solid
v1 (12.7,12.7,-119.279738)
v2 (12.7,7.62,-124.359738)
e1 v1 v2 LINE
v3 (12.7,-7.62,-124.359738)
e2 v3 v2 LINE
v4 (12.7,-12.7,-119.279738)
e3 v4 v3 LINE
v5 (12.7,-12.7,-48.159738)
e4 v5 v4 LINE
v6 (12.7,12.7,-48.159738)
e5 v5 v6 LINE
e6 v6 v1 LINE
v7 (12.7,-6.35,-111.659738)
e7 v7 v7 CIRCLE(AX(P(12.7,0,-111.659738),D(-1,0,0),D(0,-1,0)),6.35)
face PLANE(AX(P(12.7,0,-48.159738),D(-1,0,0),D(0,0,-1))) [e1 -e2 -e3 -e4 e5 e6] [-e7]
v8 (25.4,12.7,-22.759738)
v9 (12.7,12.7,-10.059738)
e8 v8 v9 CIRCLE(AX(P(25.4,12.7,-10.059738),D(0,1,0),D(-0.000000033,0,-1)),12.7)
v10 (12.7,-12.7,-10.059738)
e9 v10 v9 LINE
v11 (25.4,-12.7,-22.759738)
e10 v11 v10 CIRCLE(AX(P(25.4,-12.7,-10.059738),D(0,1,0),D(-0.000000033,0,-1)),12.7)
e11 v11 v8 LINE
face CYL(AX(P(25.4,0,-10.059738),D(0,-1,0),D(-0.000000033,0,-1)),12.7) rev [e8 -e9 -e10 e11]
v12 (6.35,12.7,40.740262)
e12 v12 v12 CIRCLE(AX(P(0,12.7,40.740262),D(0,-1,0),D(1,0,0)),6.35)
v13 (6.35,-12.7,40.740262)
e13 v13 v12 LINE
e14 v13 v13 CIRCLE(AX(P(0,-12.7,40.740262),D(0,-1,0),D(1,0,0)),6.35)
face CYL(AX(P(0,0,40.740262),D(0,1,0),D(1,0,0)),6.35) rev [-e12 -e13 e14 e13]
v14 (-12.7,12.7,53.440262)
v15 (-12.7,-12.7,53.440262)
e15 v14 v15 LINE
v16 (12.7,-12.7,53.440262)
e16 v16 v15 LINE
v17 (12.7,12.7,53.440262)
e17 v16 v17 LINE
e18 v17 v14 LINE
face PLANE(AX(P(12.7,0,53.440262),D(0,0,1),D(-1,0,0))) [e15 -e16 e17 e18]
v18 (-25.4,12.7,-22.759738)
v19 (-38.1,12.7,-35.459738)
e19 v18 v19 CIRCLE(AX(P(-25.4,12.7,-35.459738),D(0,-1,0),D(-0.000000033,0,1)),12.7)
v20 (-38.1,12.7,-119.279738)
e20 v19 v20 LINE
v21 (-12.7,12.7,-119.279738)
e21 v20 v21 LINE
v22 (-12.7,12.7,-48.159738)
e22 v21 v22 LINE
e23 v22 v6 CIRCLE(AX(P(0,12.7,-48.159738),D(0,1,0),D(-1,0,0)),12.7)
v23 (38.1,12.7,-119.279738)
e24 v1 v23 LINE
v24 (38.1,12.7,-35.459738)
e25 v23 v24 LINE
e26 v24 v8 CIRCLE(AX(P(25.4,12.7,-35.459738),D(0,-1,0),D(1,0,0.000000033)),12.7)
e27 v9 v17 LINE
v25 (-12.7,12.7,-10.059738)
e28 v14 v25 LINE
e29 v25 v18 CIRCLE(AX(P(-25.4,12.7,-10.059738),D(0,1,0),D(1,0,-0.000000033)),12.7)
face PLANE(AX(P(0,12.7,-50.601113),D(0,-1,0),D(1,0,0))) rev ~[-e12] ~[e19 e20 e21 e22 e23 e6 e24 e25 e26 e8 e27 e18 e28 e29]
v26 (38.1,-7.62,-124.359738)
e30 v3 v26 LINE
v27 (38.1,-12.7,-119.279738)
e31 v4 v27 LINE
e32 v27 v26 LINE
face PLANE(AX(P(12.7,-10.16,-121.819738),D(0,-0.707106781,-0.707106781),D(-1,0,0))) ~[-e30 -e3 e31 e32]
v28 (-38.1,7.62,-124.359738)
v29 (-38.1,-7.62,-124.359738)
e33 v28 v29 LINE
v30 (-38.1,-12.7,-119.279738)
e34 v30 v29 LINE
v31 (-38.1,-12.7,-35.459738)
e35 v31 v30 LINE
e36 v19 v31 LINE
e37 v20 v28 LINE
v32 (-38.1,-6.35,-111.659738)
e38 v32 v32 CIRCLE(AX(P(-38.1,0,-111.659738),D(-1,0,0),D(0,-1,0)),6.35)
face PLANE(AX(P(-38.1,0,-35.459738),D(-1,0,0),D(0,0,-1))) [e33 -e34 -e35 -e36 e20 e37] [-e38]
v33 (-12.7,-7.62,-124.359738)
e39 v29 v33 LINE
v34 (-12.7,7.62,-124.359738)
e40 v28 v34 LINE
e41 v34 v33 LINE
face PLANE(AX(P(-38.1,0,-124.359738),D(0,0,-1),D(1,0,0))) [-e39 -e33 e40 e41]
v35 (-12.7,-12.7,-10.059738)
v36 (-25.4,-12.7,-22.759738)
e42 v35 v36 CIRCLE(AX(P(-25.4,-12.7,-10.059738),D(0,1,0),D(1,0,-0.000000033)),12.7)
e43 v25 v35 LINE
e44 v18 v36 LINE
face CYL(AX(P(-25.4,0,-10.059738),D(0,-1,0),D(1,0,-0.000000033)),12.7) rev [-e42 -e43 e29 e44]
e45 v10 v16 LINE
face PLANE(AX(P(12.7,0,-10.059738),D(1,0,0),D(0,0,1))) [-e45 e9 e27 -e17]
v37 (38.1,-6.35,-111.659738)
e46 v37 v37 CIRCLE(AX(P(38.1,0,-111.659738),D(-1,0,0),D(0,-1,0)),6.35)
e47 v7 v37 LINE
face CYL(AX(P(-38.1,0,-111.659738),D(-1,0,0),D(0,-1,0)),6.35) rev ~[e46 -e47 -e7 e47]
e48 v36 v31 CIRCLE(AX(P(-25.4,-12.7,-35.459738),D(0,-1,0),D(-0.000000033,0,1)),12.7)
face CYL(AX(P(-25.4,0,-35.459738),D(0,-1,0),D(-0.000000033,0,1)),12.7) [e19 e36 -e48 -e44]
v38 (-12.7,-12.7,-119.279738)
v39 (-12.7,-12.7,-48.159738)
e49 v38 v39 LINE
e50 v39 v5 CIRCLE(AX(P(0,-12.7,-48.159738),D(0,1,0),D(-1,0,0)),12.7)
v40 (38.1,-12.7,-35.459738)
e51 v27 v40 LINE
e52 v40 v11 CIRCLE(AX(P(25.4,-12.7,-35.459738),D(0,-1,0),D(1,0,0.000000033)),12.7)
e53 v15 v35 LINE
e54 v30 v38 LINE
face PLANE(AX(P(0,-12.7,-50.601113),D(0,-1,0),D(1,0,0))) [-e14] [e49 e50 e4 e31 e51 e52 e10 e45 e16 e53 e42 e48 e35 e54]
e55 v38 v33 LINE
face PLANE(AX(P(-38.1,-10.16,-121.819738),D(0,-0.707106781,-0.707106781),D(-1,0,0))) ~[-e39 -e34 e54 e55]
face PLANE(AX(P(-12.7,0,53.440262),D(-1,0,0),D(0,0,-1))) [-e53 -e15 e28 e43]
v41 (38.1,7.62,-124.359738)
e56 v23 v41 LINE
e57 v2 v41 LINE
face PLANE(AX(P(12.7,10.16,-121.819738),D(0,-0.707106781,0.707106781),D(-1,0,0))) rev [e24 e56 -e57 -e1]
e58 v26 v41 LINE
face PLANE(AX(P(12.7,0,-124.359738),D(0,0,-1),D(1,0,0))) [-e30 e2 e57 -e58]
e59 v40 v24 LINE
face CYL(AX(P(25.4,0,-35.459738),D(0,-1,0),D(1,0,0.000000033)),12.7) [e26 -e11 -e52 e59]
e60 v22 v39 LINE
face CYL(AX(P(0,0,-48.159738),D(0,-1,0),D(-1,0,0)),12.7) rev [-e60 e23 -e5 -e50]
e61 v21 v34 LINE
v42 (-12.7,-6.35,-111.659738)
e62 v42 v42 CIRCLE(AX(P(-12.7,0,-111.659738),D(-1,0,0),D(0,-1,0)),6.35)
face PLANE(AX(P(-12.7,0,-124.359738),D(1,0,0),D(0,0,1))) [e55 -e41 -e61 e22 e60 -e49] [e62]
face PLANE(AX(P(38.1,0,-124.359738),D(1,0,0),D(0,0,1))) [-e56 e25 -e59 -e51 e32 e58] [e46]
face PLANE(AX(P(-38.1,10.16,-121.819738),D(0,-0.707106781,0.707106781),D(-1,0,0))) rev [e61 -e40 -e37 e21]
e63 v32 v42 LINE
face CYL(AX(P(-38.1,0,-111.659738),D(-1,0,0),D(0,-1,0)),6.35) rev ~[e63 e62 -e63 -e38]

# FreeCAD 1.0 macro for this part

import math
import FreeCAD as App
import Part
import Sketcher

V = App.Vector
Q = App.Units.Quantity


def edges_at(feature, points):
    """Names of the edges that pass closest to the given points."""
    edges = feature.Shape.Edges
    near = lambda p: min(range(len(edges)), key=lambda i: edges[i].distToShape(Part.Vertex(*p))[0])
    return sorted({f"Edge{near(p) + 1}" for p in points})

doc = App.newDocument("Part")
body = doc.addObject("PartDesign::Body", "Body")

sketch1 = body.newObject("Sketcher::SketchObject", "Sketch")
sketch1.AttachmentSupport = (doc.getObject("XZ_Plane"), [""])
sketch1.MapMode = "FlatFace"
sketch1.addGeometry(Part.LineSegment(V(12.7, 53.440262, 0), V(-12.7, 53.440262, 0)), False)
sketch1.addGeometry(Part.LineSegment(V(-12.7, 53.440262, 0), V(-12.7, -10.059738, 0)), False)
sketch1.addGeometry(Part.ArcOfCircle(Part.Circle(V(-25.4, -10.059738, 0), V(0, 0, 1), 12.7), math.radians(-89.999998), math.radians(-0.000002)), False)
sketch1.addGeometry(Part.ArcOfCircle(Part.Circle(V(-25.4, -35.459738, 0), V(0, 0, 1), 12.7), math.radians(90.000002), math.radians(179.999998)), False)
sketch1.addGeometry(Part.LineSegment(V(-38.1, -35.459738, 0), V(-38.1, -124.359738, 0)), False)
sketch1.addGeometry(Part.LineSegment(V(-38.1, -124.359738, 0), V(-12.7, -124.359738, 0)), False)
sketch1.addGeometry(Part.LineSegment(V(-12.7, -124.359738, 0), V(-12.7, -48.159738, 0)), False)
sketch1.addGeometry(Part.ArcOfCircle(Part.Circle(V(0, -48.159738, 0), V(0, 0, 1), 12.7), math.radians(0), math.radians(180)), False)
sketch1.addGeometry(Part.LineSegment(V(12.7, -48.159738, 0), V(12.7, -124.359738, 0)), False)
sketch1.addGeometry(Part.LineSegment(V(12.7, -124.359738, 0), V(38.1, -124.359738, 0)), False)
sketch1.addGeometry(Part.LineSegment(V(38.1, -124.359738, 0), V(38.1, -35.459738, 0)), False)
sketch1.addGeometry(Part.ArcOfCircle(Part.Circle(V(25.4, -35.459738, 0), V(0, 0, 1), 12.7), math.radians(0.000002), math.radians(89.999998)), False)
sketch1.addGeometry(Part.ArcOfCircle(Part.Circle(V(25.4, -10.059738, 0), V(0, 0, 1), 12.7), math.radians(-179.999998), math.radians(-90.000002)), False)
sketch1.addGeometry(Part.LineSegment(V(12.7, -10.059738, 0), V(12.7, 53.440262, 0)), False)
sketch1.addGeometry(Part.Circle(V(0, 40.740262, 0), V(0, 0, 1), 6.35), False)
sketch1.addConstraint(Sketcher.Constraint("Coincident", 0, 2, 1, 1))
sketch1.addConstraint(Sketcher.Constraint("Tangent", 1, 2, 2, 2))
sketch1.addConstraint(Sketcher.Constraint("Tangent", 2, 1, 3, 1))
sketch1.addConstraint(Sketcher.Constraint("Tangent", 3, 2, 4, 1))
sketch1.addConstraint(Sketcher.Constraint("Coincident", 4, 2, 5, 1))
sketch1.addConstraint(Sketcher.Constraint("Coincident", 5, 2, 6, 1))
sketch1.addConstraint(Sketcher.Constraint("Tangent", 6, 2, 7, 2))
sketch1.addConstraint(Sketcher.Constraint("Tangent", 7, 1, 8, 1))
sketch1.addConstraint(Sketcher.Constraint("Coincident", 8, 2, 9, 1))
sketch1.addConstraint(Sketcher.Constraint("Coincident", 9, 2, 10, 1))
sketch1.addConstraint(Sketcher.Constraint("Tangent", 10, 2, 11, 1))
sketch1.addConstraint(Sketcher.Constraint("Tangent", 11, 2, 12, 2))
sketch1.addConstraint(Sketcher.Constraint("Tangent", 12, 1, 13, 1))
sketch1.addConstraint(Sketcher.Constraint("Coincident", 13, 2, 0, 1))
sketch1.addConstraint(Sketcher.Constraint("Horizontal", 0))
sketch1.addConstraint(Sketcher.Constraint("Vertical", 1))
sketch1.addConstraint(Sketcher.Constraint("Vertical", 4))
sketch1.addConstraint(Sketcher.Constraint("Horizontal", 5))
sketch1.addConstraint(Sketcher.Constraint("Vertical", 6))
sketch1.addConstraint(Sketcher.Constraint("Vertical", 8))
sketch1.addConstraint(Sketcher.Constraint("Horizontal", 9))
sketch1.addConstraint(Sketcher.Constraint("Vertical", 10))
sketch1.addConstraint(Sketcher.Constraint("Vertical", 13))
sketch1.addConstraint(Sketcher.Constraint("Equal", 2, 3))
sketch1.addConstraint(Sketcher.Constraint("Equal", 3, 7))
sketch1.addConstraint(Sketcher.Constraint("Equal", 7, 11))
sketch1.addConstraint(Sketcher.Constraint("Equal", 11, 12))
sketch1.addConstraint(Sketcher.Constraint("Symmetric", 3, 3, 11, 3, -2))
sketch1.addConstraint(Sketcher.Constraint("Symmetric", 5, 2, 8, 2, -2))
sketch1.addConstraint(Sketcher.Constraint("PointOnObject", 14, 3, -2))
sketch1.addConstraint(Sketcher.Constraint("Vertical", 2, 3, 3, 3))
sketch1.addConstraint(Sketcher.Constraint("Vertical", 11, 3, 12, 3))
sketch1.addConstraint(Sketcher.Constraint("Vertical", 1, 2, 5, 2))
sketch1.addConstraint(Sketcher.Constraint("Diameter", 14, Q("0.5 in")))
sketch1.addConstraint(Sketcher.Constraint("Radius", 2, Q("0.5 in")))
sketch1.addConstraint(Sketcher.Constraint("DistanceY", 6, 1, 6, 2, Q("3 in")))
sketch1.addConstraint(Sketcher.Constraint("DistanceY", 1, 2, 1, 1, Q("2.5 in")))
sketch1.addConstraint(Sketcher.Constraint("DistanceY", 4, 2, 4, 1, Q("3.5 in")))
sketch1.addConstraint(Sketcher.Constraint("DistanceY", 2, 3, 14, 3, Q("2 in")))
sketch1.addConstraint(Sketcher.Constraint("DistanceY", 3, 3, -1, 1, Q("35.459738 mm")))
pad1 = body.newObject("PartDesign::Pad", "Pad")
pad1.Profile = sketch1
pad1.Length = Q("1 in")
pad1.Midplane = True

sketch2 = body.newObject("Sketcher::SketchObject", "Sketch001")
sketch2.AttachmentSupport = (doc.getObject("YZ_Plane"), [""])
sketch2.MapMode = "FlatFace"
sketch2.AttachmentOffset = App.Placement(V(0, 0, -1.5 * 25.4), App.Rotation())
sketch2.addGeometry(Part.Circle(V(0, -111.659738, 0), V(0, 0, 1), 6.35), False)
sketch2.addConstraint(Sketcher.Constraint("PointOnObject", 0, 3, -2))
sketch2.addConstraint(Sketcher.Constraint("Diameter", 0, Q("0.5 in")))
sketch2.addConstraint(Sketcher.Constraint("DistanceY", 0, 3, -1, 1, Q("111.659738 mm")))
pocket1 = body.newObject("PartDesign::Pocket", "Pocket")
pocket1.Profile = sketch2
pocket1.Length = Q("3 in")
pocket1.Reversed = True
doc.recompute()

chamfer = body.newObject("PartDesign::Chamfer", "Chamfer")
chamfer.Base = (pocket1, edges_at(pocket1, [
    (-25.4, -12.7, -124.36),
    (25.4, -12.7, -124.36),
    (25.4, 12.7, -124.36),
    (-25.4, 12.7, -124.36),
]))
chamfer.Size = Q("0.2 in")

doc.recompute()
